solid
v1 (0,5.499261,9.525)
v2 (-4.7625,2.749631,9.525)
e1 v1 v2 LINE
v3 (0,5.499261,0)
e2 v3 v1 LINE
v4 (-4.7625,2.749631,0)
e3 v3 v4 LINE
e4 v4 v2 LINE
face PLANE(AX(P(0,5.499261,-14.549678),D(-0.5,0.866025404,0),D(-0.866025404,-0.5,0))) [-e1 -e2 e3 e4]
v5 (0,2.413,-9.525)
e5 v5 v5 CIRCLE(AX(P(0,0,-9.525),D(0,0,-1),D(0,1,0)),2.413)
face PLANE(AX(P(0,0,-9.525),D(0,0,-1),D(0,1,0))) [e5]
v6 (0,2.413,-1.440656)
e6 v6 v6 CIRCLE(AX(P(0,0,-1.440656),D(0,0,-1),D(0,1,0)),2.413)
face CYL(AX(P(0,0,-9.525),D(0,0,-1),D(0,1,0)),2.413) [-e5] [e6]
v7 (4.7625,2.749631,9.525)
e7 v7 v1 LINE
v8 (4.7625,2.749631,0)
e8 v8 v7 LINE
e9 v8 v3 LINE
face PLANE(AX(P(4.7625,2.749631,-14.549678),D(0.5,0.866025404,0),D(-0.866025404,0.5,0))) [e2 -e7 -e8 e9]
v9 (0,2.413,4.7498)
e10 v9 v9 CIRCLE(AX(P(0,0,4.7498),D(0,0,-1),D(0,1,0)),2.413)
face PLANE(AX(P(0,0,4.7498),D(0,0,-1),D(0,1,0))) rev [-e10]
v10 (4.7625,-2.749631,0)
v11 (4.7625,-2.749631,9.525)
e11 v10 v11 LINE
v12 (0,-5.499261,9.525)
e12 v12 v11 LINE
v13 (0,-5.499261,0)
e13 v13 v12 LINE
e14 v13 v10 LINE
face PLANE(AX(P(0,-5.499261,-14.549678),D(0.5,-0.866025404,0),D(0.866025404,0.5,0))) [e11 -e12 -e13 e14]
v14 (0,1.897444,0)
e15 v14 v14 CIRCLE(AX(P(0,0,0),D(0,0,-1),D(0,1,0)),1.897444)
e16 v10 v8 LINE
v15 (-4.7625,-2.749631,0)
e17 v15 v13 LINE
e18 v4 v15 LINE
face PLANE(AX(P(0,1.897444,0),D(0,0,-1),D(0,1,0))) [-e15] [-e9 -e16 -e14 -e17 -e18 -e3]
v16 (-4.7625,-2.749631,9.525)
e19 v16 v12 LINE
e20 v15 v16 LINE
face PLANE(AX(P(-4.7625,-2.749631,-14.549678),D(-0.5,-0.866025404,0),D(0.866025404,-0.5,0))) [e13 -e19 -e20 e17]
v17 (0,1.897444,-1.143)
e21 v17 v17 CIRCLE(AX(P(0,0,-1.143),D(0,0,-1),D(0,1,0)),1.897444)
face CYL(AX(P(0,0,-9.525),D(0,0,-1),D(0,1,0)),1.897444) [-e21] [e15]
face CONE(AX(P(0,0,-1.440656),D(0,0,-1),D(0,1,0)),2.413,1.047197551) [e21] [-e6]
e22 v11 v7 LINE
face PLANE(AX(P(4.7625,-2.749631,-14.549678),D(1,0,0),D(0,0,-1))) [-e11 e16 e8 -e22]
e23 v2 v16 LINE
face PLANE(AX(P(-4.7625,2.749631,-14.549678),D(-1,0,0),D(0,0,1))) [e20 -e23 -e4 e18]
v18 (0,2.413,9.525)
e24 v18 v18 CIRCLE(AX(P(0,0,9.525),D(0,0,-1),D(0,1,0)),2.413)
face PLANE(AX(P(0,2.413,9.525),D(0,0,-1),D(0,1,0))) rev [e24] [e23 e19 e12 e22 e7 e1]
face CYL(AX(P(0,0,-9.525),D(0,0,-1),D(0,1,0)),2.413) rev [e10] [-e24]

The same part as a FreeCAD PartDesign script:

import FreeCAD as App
import Part
import Sketcher
Q = App.Units.Quantity

doc = App.newDocument("Part")
body = doc.addObject("PartDesign::Body", "Body")

sketch1 = body.newObject("Sketcher::SketchObject", "Sketch")
sketch1.AttachmentSupport = (doc.getObject("YZ_Plane"), [""])
sketch1.MapMode = "FlatFace"
sketch1.addGeometry([
    Part.LineSegment(App.Vector(2.4, 4.7, 0), App.Vector(0, 4.7, 0)),
    Part.LineSegment(App.Vector(0, 4.7, 0), App.Vector(0, -9.5, 0)),
    Part.LineSegment(App.Vector(0, -9.5, 0), App.Vector(2.4, -9.5, 0)),
    Part.LineSegment(App.Vector(2.4, -9.5, 0), App.Vector(2.4, -1.4, 0)),
    Part.LineSegment(App.Vector(2.4, -1.4, 0), App.Vector(1.9, -1.1, 0)),
    Part.LineSegment(App.Vector(1.9, -1.1, 0), App.Vector(1.9, 0, 0)),
    Part.LineSegment(App.Vector(1.9, 0, 0), App.Vector(4.8, 0, 0)),
    Part.LineSegment(App.Vector(4.8, 0, 0), App.Vector(4.8, 9.5, 0)),
    Part.LineSegment(App.Vector(4.8, 9.5, 0), App.Vector(2.4, 9.5, 0)),
    Part.LineSegment(App.Vector(2.4, 9.5, 0), App.Vector(2.4, 4.7, 0)),
], False)
sketch1.addConstraint([
    Sketcher.Constraint("Coincident", 0, 2, 1, 1),
    Sketcher.Constraint("Coincident", 1, 2, 2, 1),
    Sketcher.Constraint("Coincident", 2, 2, 3, 1),
    Sketcher.Constraint("Coincident", 3, 2, 4, 1),
    Sketcher.Constraint("Coincident", 4, 2, 5, 1),
    Sketcher.Constraint("Coincident", 5, 2, 6, 1),
    Sketcher.Constraint("Coincident", 6, 2, 7, 1),
    Sketcher.Constraint("Coincident", 7, 2, 8, 1),
    Sketcher.Constraint("Coincident", 8, 2, 9, 1),
    Sketcher.Constraint("Coincident", 9, 2, 0, 1),
    Sketcher.Constraint("Horizontal", 0),
    Sketcher.Constraint("Vertical", 1),
    Sketcher.Constraint("Horizontal", 2),
    Sketcher.Constraint("Vertical", 3),
    Sketcher.Constraint("Vertical", 5),
    Sketcher.Constraint("Horizontal", 6),
    Sketcher.Constraint("Vertical", 7),
    Sketcher.Constraint("Horizontal", 8),
    Sketcher.Constraint("Vertical", 9),
    Sketcher.Constraint("Symmetric", 2, 2, 8, 2, -1),
    Sketcher.Constraint("PointOnObject", 0, 2, -2),
    Sketcher.Constraint("PointOnObject", 5, 2, -1),
    Sketcher.Constraint("Angle", 4, Q("150 deg")),
    Sketcher.Constraint("DistanceX", 0, 2, 0, 1, Q("0.095 in")),
    Sketcher.Constraint("DistanceY", 1, 2, 1, 1, Q("0.562 in")),
    Sketcher.Constraint("DistanceY", 5, 1, 5, 2, Q("0.045 in")),
    Sketcher.Constraint("DistanceY", 7, 1, 7, 2, Q("0.375 in")),
    Sketcher.Constraint("DistanceX", 8, 2, 8, 1, Q("0.0925 in")),
    Sketcher.Constraint("DistanceX", 6, 1, 6, 2, 2.865056),
])
revolution = body.newObject("PartDesign::Revolution", "Revolution")
revolution.Profile = sketch1
revolution.ReferenceAxis = (sketch1, ["V_Axis"])
revolution.Angle = 360

sketch2 = body.newObject("Sketcher::SketchObject", "Sketch001")
sketch2.AttachmentSupport = (doc.getObject("XY_Plane"), [""])
sketch2.MapMode = "FlatFace"
sketch2.AttachmentOffset = App.Placement(App.Vector(0, 0, 0.375 * 25.4), App.Rotation())
sketch2.addGeometry([
    Part.LineSegment(App.Vector(-4.8, 2.7, 0), App.Vector(-4.8, -2.7, 0)),
    Part.LineSegment(App.Vector(-4.8, -2.7, 0), App.Vector(0, -5.5, 0)),
    Part.LineSegment(App.Vector(0, -5.5, 0), App.Vector(4.8, -2.7, 0)),
    Part.LineSegment(App.Vector(4.8, -2.7, 0), App.Vector(4.8, 2.7, 0)),
    Part.LineSegment(App.Vector(4.8, 2.7, 0), App.Vector(0, 5.5, 0)),
    Part.LineSegment(App.Vector(0, 5.5, 0), App.Vector(-4.8, 2.7, 0)),
    Part.Circle(App.Vector(0, 0, 0), App.Vector(0, 0, 1), 3.6),
], False)
sketch2.addConstraint([
    Sketcher.Constraint("Coincident", 0, 2, 1, 1),
    Sketcher.Constraint("Coincident", 1, 2, 2, 1),
    Sketcher.Constraint("Coincident", 2, 2, 3, 1),
    Sketcher.Constraint("Coincident", 3, 2, 4, 1),
    Sketcher.Constraint("Coincident", 4, 2, 5, 1),
    Sketcher.Constraint("Coincident", 5, 2, 0, 1),
    Sketcher.Constraint("Vertical", 0),
    Sketcher.Constraint("Vertical", 3),
    Sketcher.Constraint("Coincident", 6, 3, -1, 1),
    Sketcher.Constraint("Symmetric", 0, 2, 3, 2, -1, 1),
    Sketcher.Constraint("Symmetric", 1, 2, 4, 2, -1, 1),
    Sketcher.Constraint("PointOnObject", 1, 2, -2),
    Sketcher.Constraint("Parallel", 2, 5),
    Sketcher.Constraint("Horizontal", 0, 2, 2, 2),
    Sketcher.Constraint("Angle", 1, Q("-30 deg")),
    Sketcher.Constraint("Diameter", 6, Q("0.2825 in")),
    Sketcher.Constraint("DistanceX", 0, 2, -1, 1, Q("0.1875 in")),
    Sketcher.Constraint("DistanceY", 0, 2, 0, 1, 5.499261),
])
pad1 = body.newObject("PartDesign::Pad", "Pad")
pad1.Profile = sketch2
pad1.Length = Q("0.375 in")
pad1.Reversed = True

doc.recompute()
